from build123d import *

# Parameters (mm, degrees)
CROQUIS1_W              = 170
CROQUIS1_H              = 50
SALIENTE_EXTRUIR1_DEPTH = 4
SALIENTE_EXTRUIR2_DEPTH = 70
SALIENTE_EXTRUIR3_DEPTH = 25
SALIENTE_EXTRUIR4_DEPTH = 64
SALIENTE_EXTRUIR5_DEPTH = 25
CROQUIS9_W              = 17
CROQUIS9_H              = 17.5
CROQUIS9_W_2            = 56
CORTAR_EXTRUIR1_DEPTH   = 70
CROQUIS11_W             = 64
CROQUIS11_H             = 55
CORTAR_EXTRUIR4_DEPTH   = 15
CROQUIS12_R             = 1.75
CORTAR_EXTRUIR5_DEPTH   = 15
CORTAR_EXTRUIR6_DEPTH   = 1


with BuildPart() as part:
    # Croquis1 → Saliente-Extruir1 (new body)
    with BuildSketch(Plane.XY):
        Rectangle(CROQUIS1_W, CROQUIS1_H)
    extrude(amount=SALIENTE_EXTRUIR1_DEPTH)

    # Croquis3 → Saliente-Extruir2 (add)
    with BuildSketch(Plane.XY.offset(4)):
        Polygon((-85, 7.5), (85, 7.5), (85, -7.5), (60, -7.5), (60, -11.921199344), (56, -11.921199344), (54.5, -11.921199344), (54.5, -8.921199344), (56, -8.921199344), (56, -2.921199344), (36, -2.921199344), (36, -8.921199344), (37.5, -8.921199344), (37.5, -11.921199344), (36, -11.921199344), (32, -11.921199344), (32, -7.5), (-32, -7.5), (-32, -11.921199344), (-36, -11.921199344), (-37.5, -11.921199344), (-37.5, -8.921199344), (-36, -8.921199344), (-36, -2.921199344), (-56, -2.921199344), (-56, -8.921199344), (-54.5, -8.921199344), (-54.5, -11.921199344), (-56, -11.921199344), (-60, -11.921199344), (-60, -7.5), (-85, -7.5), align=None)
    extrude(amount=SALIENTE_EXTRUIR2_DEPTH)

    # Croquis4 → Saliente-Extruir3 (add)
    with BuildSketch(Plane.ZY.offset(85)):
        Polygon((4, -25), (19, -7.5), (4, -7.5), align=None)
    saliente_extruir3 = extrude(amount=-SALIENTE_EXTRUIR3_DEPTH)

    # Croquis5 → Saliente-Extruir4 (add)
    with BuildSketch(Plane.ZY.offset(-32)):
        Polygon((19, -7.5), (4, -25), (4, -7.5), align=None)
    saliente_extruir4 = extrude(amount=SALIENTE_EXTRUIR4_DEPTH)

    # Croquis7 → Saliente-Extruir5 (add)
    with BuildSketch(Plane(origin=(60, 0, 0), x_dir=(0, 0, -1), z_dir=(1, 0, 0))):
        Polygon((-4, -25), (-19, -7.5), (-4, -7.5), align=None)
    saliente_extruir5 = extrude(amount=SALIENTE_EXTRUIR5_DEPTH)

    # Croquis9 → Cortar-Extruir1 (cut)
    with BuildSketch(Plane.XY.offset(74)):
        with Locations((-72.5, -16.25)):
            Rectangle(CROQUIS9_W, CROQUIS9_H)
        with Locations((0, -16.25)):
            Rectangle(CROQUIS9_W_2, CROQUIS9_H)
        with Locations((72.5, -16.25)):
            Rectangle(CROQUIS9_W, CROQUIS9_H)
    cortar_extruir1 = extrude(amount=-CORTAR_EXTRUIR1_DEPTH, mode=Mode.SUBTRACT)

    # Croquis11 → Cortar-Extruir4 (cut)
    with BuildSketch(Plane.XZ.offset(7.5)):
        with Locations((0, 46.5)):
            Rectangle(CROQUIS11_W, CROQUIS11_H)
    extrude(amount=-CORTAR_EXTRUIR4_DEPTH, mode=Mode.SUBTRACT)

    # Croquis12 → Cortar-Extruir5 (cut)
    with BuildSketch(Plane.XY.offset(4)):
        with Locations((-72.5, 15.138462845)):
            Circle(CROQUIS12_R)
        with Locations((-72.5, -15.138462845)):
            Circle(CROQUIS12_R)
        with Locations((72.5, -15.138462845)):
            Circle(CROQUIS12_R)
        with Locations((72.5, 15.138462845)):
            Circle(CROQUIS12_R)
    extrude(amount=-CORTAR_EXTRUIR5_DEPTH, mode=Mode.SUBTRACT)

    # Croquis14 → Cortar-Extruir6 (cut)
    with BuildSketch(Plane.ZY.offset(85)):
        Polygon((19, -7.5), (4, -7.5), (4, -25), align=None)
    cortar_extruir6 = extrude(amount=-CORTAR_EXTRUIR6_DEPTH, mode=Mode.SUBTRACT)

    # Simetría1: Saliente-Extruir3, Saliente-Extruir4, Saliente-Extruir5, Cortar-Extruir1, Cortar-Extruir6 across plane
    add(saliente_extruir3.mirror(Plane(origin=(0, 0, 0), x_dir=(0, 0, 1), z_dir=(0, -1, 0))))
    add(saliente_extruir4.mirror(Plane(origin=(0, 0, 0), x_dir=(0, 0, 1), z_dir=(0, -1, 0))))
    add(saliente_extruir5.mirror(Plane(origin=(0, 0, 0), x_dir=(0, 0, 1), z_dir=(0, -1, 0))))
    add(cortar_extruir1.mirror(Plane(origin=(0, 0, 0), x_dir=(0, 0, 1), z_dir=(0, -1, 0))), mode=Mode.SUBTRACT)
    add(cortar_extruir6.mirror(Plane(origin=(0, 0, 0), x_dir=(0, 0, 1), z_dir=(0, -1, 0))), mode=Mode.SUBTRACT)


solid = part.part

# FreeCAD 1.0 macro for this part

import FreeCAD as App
import Part
import Sketcher
Q = App.Units.Quantity

doc = App.newDocument("Part")
params = doc.addObject("Spreadsheet::Sheet", "Params")
for row, (alias, value) in enumerate([
    ("sketch1_width", "170 mm"),
    ("sketch1_height", "50 mm"),
    ("pad1_length", "4 mm"),
    ("sketch2_width", "170 mm"),
    ("sketch2_width2", "25 mm"),
    ("sketch2_width3", "20 mm"),
    ("sketch2_width4", "64 mm"),
    ("sketch2_height", "15 mm"),
    ("pad2_length", "70 mm"),
    ("sketch3_height", "15 mm"),
    ("sketch3_width", "17.5 mm"),
    ("pad3_length", "25 mm"),
    ("sketch4_height", "15 mm"),
    ("sketch4_width", "17.5 mm"),
    ("pad4_length", "64 mm"),
    ("sketch5_height", "15 mm"),
    ("sketch5_width", "17.5 mm"),
    ("pad5_length", "25 mm"),
    ("sketch6_width", "17 mm"),
    ("sketch6_width2", "56 mm"),
    ("sketch6_height", "17.5 mm"),
    ("pocket1_length", "70 mm"),
    ("sketch7_width", "64 mm"),
    ("sketch7_height", "55 mm"),
    ("pocket2_length", "15 mm"),
    ("sketch8_diameter", "3.5 mm"),
    ("pocket3_length", "15 mm"),
    ("sketch9_height", "15 mm"),
    ("sketch9_width", "17.5 mm"),
    ("pocket4_length", "1 mm"),
], start=1):
    params.set(f"A{row}", alias)
    params.set(f"B{row}", "=" + value)
    params.setAlias(f"B{row}", alias)

body = doc.addObject("PartDesign::Body", "Body")

sketch1 = body.newObject("Sketcher::SketchObject", "Sketch")
sketch1.AttachmentSupport = (doc.getObject("XY_Plane"), [""])
sketch1.MapMode = "FlatFace"
sketch1.addGeometry([
    Part.LineSegment(App.Vector(-85, 25, 0), App.Vector(-85, -25, 0)),
    Part.LineSegment(App.Vector(-85, -25, 0), App.Vector(85, -25, 0)),
    Part.LineSegment(App.Vector(85, -25, 0), App.Vector(85, 25, 0)),
    Part.LineSegment(App.Vector(85, 25, 0), App.Vector(-85, 25, 0)),
], False)
sketch1.addConstraint([
    Sketcher.Constraint("Coincident", 0, 2, 1, 1),
    Sketcher.Constraint("Coincident", 1, 2, 2, 1),
    Sketcher.Constraint("Coincident", 2, 2, 3, 1),
    Sketcher.Constraint("Coincident", 3, 2, 0, 1),
    Sketcher.Constraint("Vertical", 0),
    Sketcher.Constraint("Horizontal", 1),
    Sketcher.Constraint("Vertical", 2),
    Sketcher.Constraint("Horizontal", 3),
    Sketcher.Constraint("Symmetric", 0, 2, 2, 2, -1, 1),
    Sketcher.Constraint("DistanceX", 1, 1, 1, 2, Q("170 mm")),
    Sketcher.Constraint("DistanceY", 0, 2, 0, 1, Q("50 mm")),
])
sketch1.setExpression("Constraints[9]", "Params.sketch1_width")
sketch1.setExpression("Constraints[10]", "Params.sketch1_height")
pad1 = body.newObject("PartDesign::Pad", "Pad")
pad1.Profile = sketch1
pad1.setExpression("Length", "Params.pad1_length")

sketch2 = body.newObject("Sketcher::SketchObject", "Sketch001")
sketch2.AttachmentSupport = (doc.getObject("XY_Plane"), [""])
sketch2.MapMode = "FlatFace"
sketch2.AttachmentOffset = App.Placement(App.Vector(0, 0, 4), App.Rotation())
sketch2.addGeometry([
    Part.LineSegment(App.Vector(85, 7.5, 0), App.Vector(-85, 7.5, 0)),
    Part.LineSegment(App.Vector(-85, 7.5, 0), App.Vector(-85, -7.5, 0)),
    Part.LineSegment(App.Vector(-85, -7.5, 0), App.Vector(-60, -7.5, 0)),
    Part.LineSegment(App.Vector(-60, -7.5, 0), App.Vector(-60, -11.921199, 0)),
    Part.LineSegment(App.Vector(-60, -11.921199, 0), App.Vector(-54.5, -11.921199, 0)),
    Part.LineSegment(App.Vector(-54.5, -11.921199, 0), App.Vector(-54.5, -8.921199, 0)),
    Part.LineSegment(App.Vector(-54.5, -8.921199, 0), App.Vector(-56, -8.921199, 0)),
    Part.LineSegment(App.Vector(-56, -8.921199, 0), App.Vector(-56, -2.921199, 0)),
    Part.LineSegment(App.Vector(-56, -2.921199, 0), App.Vector(-36, -2.921199, 0)),
    Part.LineSegment(App.Vector(-36, -2.921199, 0), App.Vector(-36, -8.921199, 0)),
    Part.LineSegment(App.Vector(-36, -8.921199, 0), App.Vector(-37.5, -8.921199, 0)),
    Part.LineSegment(App.Vector(-37.5, -8.921199, 0), App.Vector(-37.5, -11.921199, 0)),
    Part.LineSegment(App.Vector(-37.5, -11.921199, 0), App.Vector(-32, -11.921199, 0)),
    Part.LineSegment(App.Vector(-32, -11.921199, 0), App.Vector(-32, -7.5, 0)),
    Part.LineSegment(App.Vector(-32, -7.5, 0), App.Vector(32, -7.5, 0)),
    Part.LineSegment(App.Vector(32, -7.5, 0), App.Vector(32, -11.921199, 0)),
    Part.LineSegment(App.Vector(32, -11.921199, 0), App.Vector(37.5, -11.921199, 0)),
    Part.LineSegment(App.Vector(37.5, -11.921199, 0), App.Vector(37.5, -8.921199, 0)),
    Part.LineSegment(App.Vector(37.5, -8.921199, 0), App.Vector(36, -8.921199, 0)),
    Part.LineSegment(App.Vector(36, -8.921199, 0), App.Vector(36, -2.921199, 0)),
    Part.LineSegment(App.Vector(36, -2.921199, 0), App.Vector(56, -2.921199, 0)),
    Part.LineSegment(App.Vector(56, -2.921199, 0), App.Vector(56, -8.921199, 0)),
    Part.LineSegment(App.Vector(56, -8.921199, 0), App.Vector(54.5, -8.921199, 0)),
    Part.LineSegment(App.Vector(54.5, -8.921199, 0), App.Vector(54.5, -11.921199, 0)),
    Part.LineSegment(App.Vector(54.5, -11.921199, 0), App.Vector(60, -11.921199, 0)),
    Part.LineSegment(App.Vector(60, -11.921199, 0), App.Vector(60, -7.5, 0)),
    Part.LineSegment(App.Vector(60, -7.5, 0), App.Vector(85, -7.5, 0)),
    Part.LineSegment(App.Vector(85, -7.5, 0), App.Vector(85, 7.5, 0)),
], False)
sketch2.addConstraint([
    Sketcher.Constraint("Coincident", 0, 2, 1, 1),
    Sketcher.Constraint("Coincident", 1, 2, 2, 1),
    Sketcher.Constraint("Coincident", 2, 2, 3, 1),
    Sketcher.Constraint("Coincident", 3, 2, 4, 1),
    Sketcher.Constraint("Coincident", 4, 2, 5, 1),
    Sketcher.Constraint("Coincident", 5, 2, 6, 1),
    Sketcher.Constraint("Coincident", 6, 2, 7, 1),
    Sketcher.Constraint("Coincident", 7, 2, 8, 1),
    Sketcher.Constraint("Coincident", 8, 2, 9, 1),
    Sketcher.Constraint("Coincident", 9, 2, 10, 1),
    Sketcher.Constraint("Coincident", 10, 2, 11, 1),
    Sketcher.Constraint("Coincident", 11, 2, 12, 1),
    Sketcher.Constraint("Coincident", 12, 2, 13, 1),
    Sketcher.Constraint("Coincident", 13, 2, 14, 1),
    Sketcher.Constraint("Coincident", 14, 2, 15, 1),
    Sketcher.Constraint("Coincident", 15, 2, 16, 1),
    Sketcher.Constraint("Coincident", 16, 2, 17, 1),
    Sketcher.Constraint("Coincident", 17, 2, 18, 1),
    Sketcher.Constraint("Coincident", 18, 2, 19, 1),
    Sketcher.Constraint("Coincident", 19, 2, 20, 1),
    Sketcher.Constraint("Coincident", 20, 2, 21, 1),
    Sketcher.Constraint("Coincident", 21, 2, 22, 1),
    Sketcher.Constraint("Coincident", 22, 2, 23, 1),
    Sketcher.Constraint("Coincident", 23, 2, 24, 1),
    Sketcher.Constraint("Coincident", 24, 2, 25, 1),
    Sketcher.Constraint("Coincident", 25, 2, 26, 1),
    Sketcher.Constraint("Coincident", 26, 2, 27, 1),
    Sketcher.Constraint("Coincident", 27, 2, 0, 1),
    Sketcher.Constraint("Horizontal", 0),
    Sketcher.Constraint("Vertical", 1),
    Sketcher.Constraint("Horizontal", 2),
    Sketcher.Constraint("Vertical", 3),
    Sketcher.Constraint("Horizontal", 4),
    Sketcher.Constraint("Vertical", 5),
    Sketcher.Constraint("Horizontal", 6),
    Sketcher.Constraint("Vertical", 7),
    Sketcher.Constraint("Horizontal", 8),
    Sketcher.Constraint("Vertical", 9),
    Sketcher.Constraint("Horizontal", 10),
    Sketcher.Constraint("Vertical", 11),
    Sketcher.Constraint("Horizontal", 12),
    Sketcher.Constraint("Vertical", 13),
    Sketcher.Constraint("Horizontal", 14),
    Sketcher.Constraint("Vertical", 15),
    Sketcher.Constraint("Horizontal", 16),
    Sketcher.Constraint("Vertical", 17),
    Sketcher.Constraint("Horizontal", 18),
    Sketcher.Constraint("Vertical", 19),
    Sketcher.Constraint("Horizontal", 20),
    Sketcher.Constraint("Vertical", 21),
    Sketcher.Constraint("Horizontal", 22),
    Sketcher.Constraint("Vertical", 23),
    Sketcher.Constraint("Horizontal", 24),
    Sketcher.Constraint("Vertical", 25),
    Sketcher.Constraint("Horizontal", 26),
    Sketcher.Constraint("Vertical", 27),
    Sketcher.Constraint("Symmetric", 0, 2, 26, 2, -1, 1),
    Sketcher.Constraint("Symmetric", 12, 2, 15, 2, -2),
    Sketcher.Constraint("Symmetric", 10, 2, 17, 2, -2),
    Sketcher.Constraint("Symmetric", 8, 2, 19, 2, -2),
    Sketcher.Constraint("Symmetric", 6, 2, 21, 2, -2),
    Sketcher.Constraint("Symmetric", 4, 2, 23, 2, -2),
    Sketcher.Constraint("Symmetric", 2, 2, 25, 2, -2),
    Sketcher.Constraint("Horizontal", 6, 2, 9, 2),
    Sketcher.Constraint("Horizontal", 4, 2, 11, 2),
    Sketcher.Constraint("Horizontal", 2, 2, 13, 2),
    Sketcher.Constraint("Equal", 6, 10),
    Sketcher.Constraint("Equal", 4, 12),
    Sketcher.Constraint("DistanceX", 0, 2, 0, 1, Q("170 mm")),
    Sketcher.Constraint("DistanceX", 2, 1, 2, 2, Q("25 mm")),
    Sketcher.Constraint("DistanceX", 8, 1, 8, 2, Q("20 mm")),
    Sketcher.Constraint("DistanceX", 14, 1, 14, 2, Q("64 mm")),
    Sketcher.Constraint("DistanceY", 1, 2, 1, 1, Q("15 mm")),
    Sketcher.Constraint("DistanceY", 5, 1, 5, 2, Q("3 mm")),
    Sketcher.Constraint("DistanceY", 7, 1, 7, 2, Q("6 mm")),
    Sketcher.Constraint("DistanceX", 4, 1, 4, 2, Q("5.5 mm")),
    Sketcher.Constraint("DistanceY", 3, 2, 3, 1, Q("4.421199 mm")),
])
sketch2.setExpression("Constraints[68]", "Params.sketch2_width")
sketch2.setExpression("Constraints[69]", "Params.sketch2_width2")
sketch2.setExpression("Constraints[70]", "Params.sketch2_width3")
sketch2.setExpression("Constraints[71]", "Params.sketch2_width4")
sketch2.setExpression("Constraints[72]", "Params.sketch2_height")
pad2 = body.newObject("PartDesign::Pad", "Pad001")
pad2.Profile = sketch2
pad2.setExpression("Length", "Params.pad2_length")

sketch3 = body.newObject("Sketcher::SketchObject", "Sketch002")
sketch3.AttachmentSupport = (doc.getObject("YZ_Plane"), [""])
sketch3.MapMode = "FlatFace"
sketch3.AttachmentOffset = App.Placement(App.Vector(0, 0, -85), App.Rotation())
sketch3.addGeometry([
    Part.LineSegment(App.Vector(-25, 4, 0), App.Vector(-7.5, 19, 0)),
    Part.LineSegment(App.Vector(-7.5, 19, 0), App.Vector(-7.5, 4, 0)),
    Part.LineSegment(App.Vector(-7.5, 4, 0), App.Vector(-25, 4, 0)),
], False)
sketch3.addConstraint([
    Sketcher.Constraint("Coincident", 0, 2, 1, 1),
    Sketcher.Constraint("Coincident", 1, 2, 2, 1),
    Sketcher.Constraint("Coincident", 2, 2, 0, 1),
    Sketcher.Constraint("Vertical", 1),
    Sketcher.Constraint("Horizontal", 2),
    Sketcher.Constraint("DistanceY", 1, 2, 1, 1, Q("15 mm")),
    Sketcher.Constraint("DistanceX", 2, 2, 2, 1, Q("17.5 mm")),
    Sketcher.Constraint("DistanceY", -1, 1, 0, 2, Q("19 mm")),
    Sketcher.Constraint("DistanceX", 2, 2, -1, 1, Q("25 mm")),
])
sketch3.setExpression("Constraints[5]", "Params.sketch3_height")
sketch3.setExpression("Constraints[6]", "Params.sketch3_width")
pad3 = body.newObject("PartDesign::Pad", "Pad002")
pad3.Profile = sketch3
pad3.setExpression("Length", "Params.pad3_length")

sketch4 = body.newObject("Sketcher::SketchObject", "Sketch003")
sketch4.AttachmentSupport = (doc.getObject("YZ_Plane"), [""])
sketch4.MapMode = "FlatFace"
sketch4.AttachmentOffset = App.Placement(App.Vector(0, 0, 32), App.Rotation())
sketch4.addGeometry([
    Part.LineSegment(App.Vector(-25, 4, 0), App.Vector(-7.5, 19, 0)),
    Part.LineSegment(App.Vector(-7.5, 19, 0), App.Vector(-7.5, 4, 0)),
    Part.LineSegment(App.Vector(-7.5, 4, 0), App.Vector(-25, 4, 0)),
], False)
sketch4.addConstraint([
    Sketcher.Constraint("Coincident", 0, 2, 1, 1),
    Sketcher.Constraint("Coincident", 1, 2, 2, 1),
    Sketcher.Constraint("Coincident", 2, 2, 0, 1),
    Sketcher.Constraint("Vertical", 1),
    Sketcher.Constraint("Horizontal", 2),
    Sketcher.Constraint("DistanceY", 1, 2, 1, 1, Q("15 mm")),
    Sketcher.Constraint("DistanceX", 2, 2, 2, 1, Q("17.5 mm")),
    Sketcher.Constraint("DistanceY", -1, 1, 0, 2, Q("19 mm")),
    Sketcher.Constraint("DistanceX", 2, 2, -1, 1, Q("25 mm")),
])
sketch4.setExpression("Constraints[5]", "Params.sketch4_height")
sketch4.setExpression("Constraints[6]", "Params.sketch4_width")
pad4 = body.newObject("PartDesign::Pad", "Pad003")
pad4.Profile = sketch4
pad4.setExpression("Length", "Params.pad4_length")
pad4.Reversed = True

sketch5 = body.newObject("Sketcher::SketchObject", "Sketch004")
sketch5.AttachmentSupport = (doc.getObject("YZ_Plane"), [""])
sketch5.MapMode = "FlatFace"
sketch5.AttachmentOffset = App.Placement(App.Vector(0, 0, 60), App.Rotation())
sketch5.addGeometry([
    Part.LineSegment(App.Vector(-7.5, 19, 0), App.Vector(-25, 4, 0)),
    Part.LineSegment(App.Vector(-25, 4, 0), App.Vector(-7.5, 4, 0)),
    Part.LineSegment(App.Vector(-7.5, 4, 0), App.Vector(-7.5, 19, 0)),
], False)
sketch5.addConstraint([
    Sketcher.Constraint("Coincident", 0, 2, 1, 1),
    Sketcher.Constraint("Coincident", 1, 2, 2, 1),
    Sketcher.Constraint("Coincident", 2, 2, 0, 1),
    Sketcher.Constraint("Horizontal", 1),
    Sketcher.Constraint("Vertical", 2),
    Sketcher.Constraint("DistanceY", 2, 1, 2, 2, Q("15 mm")),
    Sketcher.Constraint("DistanceX", 1, 1, 1, 2, Q("17.5 mm")),
    Sketcher.Constraint("DistanceX", 0, 2, -1, 1, Q("25 mm")),
    Sketcher.Constraint("DistanceY", -1, 1, 0, 2, Q("4 mm")),
])
sketch5.setExpression("Constraints[5]", "Params.sketch5_height")
sketch5.setExpression("Constraints[6]", "Params.sketch5_width")
pad5 = body.newObject("PartDesign::Pad", "Pad004")
pad5.Profile = sketch5
pad5.setExpression("Length", "Params.pad5_length")

sketch6 = body.newObject("Sketcher::SketchObject", "Sketch005")
sketch6.AttachmentSupport = (doc.getObject("XY_Plane"), [""])
sketch6.MapMode = "FlatFace"
sketch6.AttachmentOffset = App.Placement(App.Vector(0, 0, 74), App.Rotation())
sketch6.addGeometry([
    Part.LineSegment(App.Vector(-81, -7.5, 0), App.Vector(-81, -25, 0)),
    Part.LineSegment(App.Vector(-81, -25, 0), App.Vector(-64, -25, 0)),
    Part.LineSegment(App.Vector(-64, -25, 0), App.Vector(-64, -7.5, 0)),
    Part.LineSegment(App.Vector(-64, -7.5, 0), App.Vector(-81, -7.5, 0)),
    Part.LineSegment(App.Vector(-28, -7.5, 0), App.Vector(-28, -25, 0)),
    Part.LineSegment(App.Vector(-28, -25, 0), App.Vector(28, -25, 0)),
    Part.LineSegment(App.Vector(28, -25, 0), App.Vector(28, -7.5, 0)),
    Part.LineSegment(App.Vector(28, -7.5, 0), App.Vector(-28, -7.5, 0)),
    Part.LineSegment(App.Vector(64, -7.5, 0), App.Vector(64, -25, 0)),
    Part.LineSegment(App.Vector(64, -25, 0), App.Vector(81, -25, 0)),
    Part.LineSegment(App.Vector(81, -25, 0), App.Vector(81, -7.5, 0)),
    Part.LineSegment(App.Vector(81, -7.5, 0), App.Vector(64, -7.5, 0)),
], False)
sketch6.addConstraint([
    Sketcher.Constraint("Coincident", 0, 2, 1, 1),
    Sketcher.Constraint("Coincident", 1, 2, 2, 1),
    Sketcher.Constraint("Coincident", 2, 2, 3, 1),
    Sketcher.Constraint("Coincident", 3, 2, 0, 1),
    Sketcher.Constraint("Coincident", 4, 2, 5, 1),
    Sketcher.Constraint("Coincident", 5, 2, 6, 1),
    Sketcher.Constraint("Coincident", 6, 2, 7, 1),
    Sketcher.Constraint("Coincident", 7, 2, 4, 1),
    Sketcher.Constraint("Coincident", 8, 2, 9, 1),
    Sketcher.Constraint("Coincident", 9, 2, 10, 1),
    Sketcher.Constraint("Coincident", 10, 2, 11, 1),
    Sketcher.Constraint("Coincident", 11, 2, 8, 1),
    Sketcher.Constraint("Vertical", 0),
    Sketcher.Constraint("Horizontal", 1),
    Sketcher.Constraint("Vertical", 2),
    Sketcher.Constraint("Horizontal", 3),
    Sketcher.Constraint("Vertical", 4),
    Sketcher.Constraint("Horizontal", 5),
    Sketcher.Constraint("Vertical", 6),
    Sketcher.Constraint("Horizontal", 7),
    Sketcher.Constraint("Vertical", 8),
    Sketcher.Constraint("Horizontal", 9),
    Sketcher.Constraint("Vertical", 10),
    Sketcher.Constraint("Horizontal", 11),
    Sketcher.Constraint("Symmetric", 1, 2, 8, 2, -2),
    Sketcher.Constraint("Symmetric", 3, 2, 10, 2, -2),
    Sketcher.Constraint("Horizontal", 1, 2, 4, 2),
    Sketcher.Constraint("Horizontal", 3, 2, 6, 2),
    Sketcher.Constraint("DistanceX", 1, 1, 1, 2, Q("17 mm")),
    Sketcher.Constraint("DistanceX", 5, 1, 5, 2, Q("56 mm")),
    Sketcher.Constraint("DistanceY", 0, 2, 0, 1, Q("17.5 mm")),
    Sketcher.Constraint("DistanceX", 0, 2, -1, 1, Q("81 mm")),
    Sketcher.Constraint("DistanceY", 0, 2, -1, 1, Q("25 mm")),
    Sketcher.Constraint("DistanceX", 4, 2, -1, 1, Q("28 mm")),
])
sketch6.setExpression("Constraints[28]", "Params.sketch6_width")
sketch6.setExpression("Constraints[29]", "Params.sketch6_width2")
sketch6.setExpression("Constraints[30]", "Params.sketch6_height")
pocket1 = body.newObject("PartDesign::Pocket", "Pocket")
pocket1.Profile = sketch6
pocket1.setExpression("Length", "Params.pocket1_length")

sketch7 = body.newObject("Sketcher::SketchObject", "Sketch006")
sketch7.AttachmentSupport = (doc.getObject("XZ_Plane"), [""])
sketch7.MapMode = "FlatFace"
sketch7.AttachmentOffset = App.Placement(App.Vector(0, 0, 7.5), App.Rotation())
sketch7.addGeometry([
    Part.LineSegment(App.Vector(-32, 74, 0), App.Vector(-32, 19, 0)),
    Part.LineSegment(App.Vector(-32, 19, 0), App.Vector(32, 19, 0)),
    Part.LineSegment(App.Vector(32, 19, 0), App.Vector(32, 74, 0)),
    Part.LineSegment(App.Vector(32, 74, 0), App.Vector(-32, 74, 0)),
], False)
sketch7.addConstraint([
    Sketcher.Constraint("Coincident", 0, 2, 1, 1),
    Sketcher.Constraint("Coincident", 1, 2, 2, 1),
    Sketcher.Constraint("Coincident", 2, 2, 3, 1),
    Sketcher.Constraint("Coincident", 3, 2, 0, 1),
    Sketcher.Constraint("Vertical", 0),
    Sketcher.Constraint("Horizontal", 1),
    Sketcher.Constraint("Vertical", 2),
    Sketcher.Constraint("Horizontal", 3),
    Sketcher.Constraint("DistanceX", 1, 1, 1, 2, Q("64 mm")),
    Sketcher.Constraint("DistanceY", 0, 2, 0, 1, Q("55 mm")),
    Sketcher.Constraint("DistanceX", 0, 2, -1, 1, Q("32 mm")),
    Sketcher.Constraint("DistanceY", -1, 1, 0, 2, Q("19 mm")),
])
sketch7.setExpression("Constraints[8]", "Params.sketch7_width")
sketch7.setExpression("Constraints[9]", "Params.sketch7_height")
pocket2 = body.newObject("PartDesign::Pocket", "Pocket001")
pocket2.Profile = sketch7
pocket2.setExpression("Length", "Params.pocket2_length")

sketch8 = body.newObject("Sketcher::SketchObject", "Sketch007")
sketch8.AttachmentSupport = (doc.getObject("XY_Plane"), [""])
sketch8.MapMode = "FlatFace"
sketch8.AttachmentOffset = App.Placement(App.Vector(0, 0, 4), App.Rotation())
sketch8.addGeometry([
    Part.Circle(App.Vector(-72.5, 15.138463, 0), App.Vector(0, 0, 1), 1.75),
    Part.Circle(App.Vector(-72.5, -15.138463, 0), App.Vector(0, 0, 1), 1.75),
    Part.Circle(App.Vector(72.5, -15.138463, 0), App.Vector(0, 0, 1), 1.75),
    Part.Circle(App.Vector(72.5, 15.138463, 0), App.Vector(0, 0, 1), 1.75),
], False)
sketch8.addConstraint([
    Sketcher.Constraint("Equal", 0, 1),
    Sketcher.Constraint("Equal", 1, 2),
    Sketcher.Constraint("Equal", 2, 3),
    Sketcher.Constraint("Symmetric", 0, 3, 2, 3, -1, 1),
    Sketcher.Constraint("Symmetric", 1, 3, 3, 3, -1, 1),
    Sketcher.Constraint("Symmetric", 1, 3, 2, 3, -2),
    Sketcher.Constraint("Diameter", 0, Q("3.5 mm")),
    Sketcher.Constraint("DistanceX", 1, 3, 2, 3, Q("145 mm")),
    Sketcher.Constraint("DistanceY", -1, 1, 0, 3, Q("15.138463 mm")),
])
sketch8.setExpression("Constraints[6]", "Params.sketch8_diameter")
pocket3 = body.newObject("PartDesign::Pocket", "Pocket002")
pocket3.Profile = sketch8
pocket3.setExpression("Length", "Params.pocket3_length")

sketch9 = body.newObject("Sketcher::SketchObject", "Sketch008")
sketch9.AttachmentSupport = (doc.getObject("YZ_Plane"), [""])
sketch9.MapMode = "FlatFace"
sketch9.AttachmentOffset = App.Placement(App.Vector(0, 0, -85), App.Rotation())
sketch9.addGeometry([
    Part.LineSegment(App.Vector(-7.5, 19, 0), App.Vector(-7.5, 4, 0)),
    Part.LineSegment(App.Vector(-7.5, 4, 0), App.Vector(-25, 4, 0)),
    Part.LineSegment(App.Vector(-25, 4, 0), App.Vector(-7.5, 19, 0)),
], False)
sketch9.addConstraint([
    Sketcher.Constraint("Coincident", 0, 2, 1, 1),
    Sketcher.Constraint("Coincident", 1, 2, 2, 1),
    Sketcher.Constraint("Coincident", 2, 2, 0, 1),
    Sketcher.Constraint("Vertical", 0),
    Sketcher.Constraint("Horizontal", 1),
    Sketcher.Constraint("DistanceY", 0, 2, 0, 1, Q("15 mm")),
    Sketcher.Constraint("DistanceX", 1, 2, 1, 1, Q("17.5 mm")),
    Sketcher.Constraint("DistanceY", -1, 1, 0, 2, Q("4 mm")),
    Sketcher.Constraint("DistanceX", 1, 2, -1, 1, Q("25 mm")),
])
sketch9.setExpression("Constraints[5]", "Params.sketch9_height")
sketch9.setExpression("Constraints[6]", "Params.sketch9_width")
pocket4 = body.newObject("PartDesign::Pocket", "Pocket003")
pocket4.Profile = sketch9
pocket4.setExpression("Length", "Params.pocket4_length")
pocket4.Reversed = True
doc.recompute()

mirrored = body.newObject("PartDesign::Mirrored", "Mirrored")
mirrored.Originals = [pad3, pad4, pad5, pocket1, pocket4]
mirrored.MirrorPlane = (doc.getObject("XZ_Plane"), [""])
body.Tip = mirrored

doc.recompute()
